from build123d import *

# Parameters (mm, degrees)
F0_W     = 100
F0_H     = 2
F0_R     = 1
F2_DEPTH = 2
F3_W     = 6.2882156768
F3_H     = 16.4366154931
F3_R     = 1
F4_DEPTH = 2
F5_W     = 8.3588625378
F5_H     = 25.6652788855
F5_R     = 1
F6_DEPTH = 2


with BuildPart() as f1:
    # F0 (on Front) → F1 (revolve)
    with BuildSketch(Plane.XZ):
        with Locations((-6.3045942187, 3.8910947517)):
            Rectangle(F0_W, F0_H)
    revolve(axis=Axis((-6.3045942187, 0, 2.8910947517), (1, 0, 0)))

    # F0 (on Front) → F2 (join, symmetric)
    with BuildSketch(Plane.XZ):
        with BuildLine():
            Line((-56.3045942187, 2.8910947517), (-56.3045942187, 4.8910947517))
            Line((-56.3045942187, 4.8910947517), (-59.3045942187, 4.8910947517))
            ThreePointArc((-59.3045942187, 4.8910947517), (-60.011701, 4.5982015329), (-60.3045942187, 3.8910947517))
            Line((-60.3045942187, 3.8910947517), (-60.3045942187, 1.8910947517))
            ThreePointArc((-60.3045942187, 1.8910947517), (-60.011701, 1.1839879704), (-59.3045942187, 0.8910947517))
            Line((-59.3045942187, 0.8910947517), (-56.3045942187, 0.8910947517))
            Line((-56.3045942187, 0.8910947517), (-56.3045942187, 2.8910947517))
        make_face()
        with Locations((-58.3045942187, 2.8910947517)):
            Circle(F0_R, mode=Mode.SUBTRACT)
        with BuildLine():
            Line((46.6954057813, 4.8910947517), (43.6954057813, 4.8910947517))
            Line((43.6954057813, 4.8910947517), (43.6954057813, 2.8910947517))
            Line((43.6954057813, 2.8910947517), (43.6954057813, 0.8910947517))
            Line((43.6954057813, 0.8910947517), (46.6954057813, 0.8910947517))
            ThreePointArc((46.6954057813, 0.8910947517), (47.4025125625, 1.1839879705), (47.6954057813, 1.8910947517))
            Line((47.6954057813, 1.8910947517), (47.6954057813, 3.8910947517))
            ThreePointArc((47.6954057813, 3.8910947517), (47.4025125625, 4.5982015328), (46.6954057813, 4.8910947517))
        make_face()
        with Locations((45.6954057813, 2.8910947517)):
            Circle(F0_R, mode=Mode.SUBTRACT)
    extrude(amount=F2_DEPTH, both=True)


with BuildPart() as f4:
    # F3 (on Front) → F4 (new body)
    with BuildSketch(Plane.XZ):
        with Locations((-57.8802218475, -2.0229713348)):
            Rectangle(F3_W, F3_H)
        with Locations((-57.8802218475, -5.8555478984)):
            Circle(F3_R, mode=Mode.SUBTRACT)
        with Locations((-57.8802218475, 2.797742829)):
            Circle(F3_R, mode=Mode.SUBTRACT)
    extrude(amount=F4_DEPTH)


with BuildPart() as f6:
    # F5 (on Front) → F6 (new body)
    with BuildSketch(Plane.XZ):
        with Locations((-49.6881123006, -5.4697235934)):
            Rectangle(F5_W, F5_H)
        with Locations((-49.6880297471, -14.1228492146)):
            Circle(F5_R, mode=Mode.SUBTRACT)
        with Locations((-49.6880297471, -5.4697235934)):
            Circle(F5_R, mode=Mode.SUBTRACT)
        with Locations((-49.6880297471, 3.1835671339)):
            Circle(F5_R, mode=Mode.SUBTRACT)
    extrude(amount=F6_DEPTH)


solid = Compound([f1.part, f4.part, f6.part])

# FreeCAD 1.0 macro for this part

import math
import FreeCAD as App
import Part
import Sketcher
Q = App.Units.Quantity

doc = App.newDocument("Part")
body = doc.addObject("PartDesign::Body", "Body")

# Sketch on XZ plane
sketch1 = doc.addObject("Sketcher::SketchObject", "Sketch")
body.addObject(sketch1)
sketch1.AttachmentSupport = (doc.XZ_Plane, [""])
sketch1.MapMode = "FlatFace"
sketch1.addGeometry(Part.LineSegment(App.Vector(-56.304594, 4.891095, 0), App.Vector(-56.304594, 2.891095, 0)), False)
sketch1.addGeometry(Part.LineSegment(App.Vector(-56.304594, 2.891095, 0), App.Vector(43.695406, 2.891095, 0)), False)
sketch1.addGeometry(Part.LineSegment(App.Vector(43.695406, 2.891095, 0), App.Vector(43.695406, 4.891095, 0)), False)
sketch1.addGeometry(Part.LineSegment(App.Vector(43.695406, 4.891095, 0), App.Vector(-56.304594, 4.891095, 0)), False)
sketch1.addGeometry(Part.LineSegment(App.Vector(-56.304594, 2.891095, 0), App.Vector(43.695406, 2.891095, 0)), True)  # axis
sketch1.addConstraint(Sketcher.Constraint("Coincident", 0, 2, 1, 1))
sketch1.addConstraint(Sketcher.Constraint("Coincident", 1, 2, 2, 1))
sketch1.addConstraint(Sketcher.Constraint("Coincident", 2, 2, 3, 1))
sketch1.addConstraint(Sketcher.Constraint("Coincident", 3, 2, 0, 1))
sketch1.addConstraint(Sketcher.Constraint("Vertical", 0))
sketch1.addConstraint(Sketcher.Constraint("Horizontal", 1))
sketch1.addConstraint(Sketcher.Constraint("Vertical", 2))
sketch1.addConstraint(Sketcher.Constraint("Horizontal", 3))
sketch1.addConstraint(Sketcher.Constraint("Horizontal", 4))
sketch1.addConstraint(Sketcher.Constraint("Coincident", 4, 1, 0, 2))
sketch1.addConstraint(Sketcher.Constraint("Vertical", 2, 2, 4, 2))
sketch1.addConstraint(Sketcher.Constraint("DistanceX", 1, 1, 1, 2, Q("100 mm")))
sketch1.addConstraint(Sketcher.Constraint("DistanceY", 0, 2, 0, 1, Q("2 mm")))
sketch1.addConstraint(Sketcher.Constraint("DistanceX", 0, 2, -1, 1, Q("56.304594 mm")))
sketch1.addConstraint(Sketcher.Constraint("DistanceY", -1, 1, 0, 2, Q("2.891095 mm")))
revolution = doc.addObject("PartDesign::Revolution", "Revolution")
body.addObject(revolution)
revolution.Profile = sketch1
revolution.ReferenceAxis = (sketch1, ["Axis0"])
revolution.Angle = 360

# Sketch on XZ plane
sketch2 = doc.addObject("Sketcher::SketchObject", "Sketch001")
body.addObject(sketch2)
sketch2.AttachmentSupport = (doc.XZ_Plane, [""])
sketch2.MapMode = "FlatFace"
sketch2.addGeometry(Part.LineSegment(App.Vector(-56.304594, 4.891095, 0), App.Vector(-59.304594, 4.891095, 0)), False)
sketch2.addGeometry(Part.ArcOfCircle(Part.Circle(App.Vector(-59.304594, 3.891095, 0), App.Vector(0, 0, 1), 1), math.radians(90), math.radians(180)), False)
sketch2.addGeometry(Part.LineSegment(App.Vector(-60.304594, 3.891095, 0), App.Vector(-60.304594, 1.891095, 0)), False)
sketch2.addGeometry(Part.ArcOfCircle(Part.Circle(App.Vector(-59.304594, 1.891095, 0), App.Vector(0, 0, 1), 1), math.radians(180), math.radians(270)), False)
sketch2.addGeometry(Part.LineSegment(App.Vector(-59.304594, 0.891095, 0), App.Vector(-56.304594, 0.891095, 0)), False)
sketch2.addGeometry(Part.LineSegment(App.Vector(-56.304594, 0.891095, 0), App.Vector(-56.304594, 4.891095, 0)), False)
sketch2.addGeometry(Part.Circle(App.Vector(-58.304594, 2.891095, 0), App.Vector(0, 0, 1), 1), False)
sketch2.addGeometry(Part.LineSegment(App.Vector(46.695406, 4.891095, 0), App.Vector(43.695406, 4.891095, 0)), False)
sketch2.addGeometry(Part.LineSegment(App.Vector(43.695406, 4.891095, 0), App.Vector(43.695406, 0.891095, 0)), False)
sketch2.addGeometry(Part.LineSegment(App.Vector(43.695406, 0.891095, 0), App.Vector(46.695406, 0.891095, 0)), False)
sketch2.addGeometry(Part.ArcOfCircle(Part.Circle(App.Vector(46.695406, 1.891095, 0), App.Vector(0, 0, 1), 1), math.radians(-90), math.radians(0)), False)
sketch2.addGeometry(Part.LineSegment(App.Vector(47.695406, 1.891095, 0), App.Vector(47.695406, 3.891095, 0)), False)
sketch2.addGeometry(Part.ArcOfCircle(Part.Circle(App.Vector(46.695406, 3.891095, 0), App.Vector(0, 0, 1), 1), math.radians(0), math.radians(90)), False)
sketch2.addGeometry(Part.Circle(App.Vector(45.695406, 2.891095, 0), App.Vector(0, 0, 1), 1), False)
sketch2.addConstraint(Sketcher.Constraint("Tangent", 0, 2, 1, 1))
sketch2.addConstraint(Sketcher.Constraint("Tangent", 1, 2, 2, 1))
sketch2.addConstraint(Sketcher.Constraint("Tangent", 2, 2, 3, 1))
sketch2.addConstraint(Sketcher.Constraint("Tangent", 3, 2, 4, 1))
sketch2.addConstraint(Sketcher.Constraint("Coincident", 4, 2, 5, 1))
sketch2.addConstraint(Sketcher.Constraint("Coincident", 5, 2, 0, 1))
sketch2.addConstraint(Sketcher.Constraint("Coincident", 7, 2, 8, 1))
sketch2.addConstraint(Sketcher.Constraint("Coincident", 8, 2, 9, 1))
sketch2.addConstraint(Sketcher.Constraint("Tangent", 9, 2, 10, 1))
sketch2.addConstraint(Sketcher.Constraint("Tangent", 10, 2, 11, 1))
sketch2.addConstraint(Sketcher.Constraint("Tangent", 11, 2, 12, 1))
sketch2.addConstraint(Sketcher.Constraint("Tangent", 12, 2, 7, 1))
sketch2.addConstraint(Sketcher.Constraint("Horizontal", 0))
sketch2.addConstraint(Sketcher.Constraint("Vertical", 2))
sketch2.addConstraint(Sketcher.Constraint("Horizontal", 4))
sketch2.addConstraint(Sketcher.Constraint("Vertical", 5))
sketch2.addConstraint(Sketcher.Constraint("Horizontal", 7))
sketch2.addConstraint(Sketcher.Constraint("Vertical", 8))
sketch2.addConstraint(Sketcher.Constraint("Horizontal", 9))
sketch2.addConstraint(Sketcher.Constraint("Vertical", 11))
sketch2.addConstraint(Sketcher.Constraint("Equal", 1, 3))
sketch2.addConstraint(Sketcher.Constraint("Equal", 3, 6))
sketch2.addConstraint(Sketcher.Constraint("Equal", 6, 10))
sketch2.addConstraint(Sketcher.Constraint("Equal", 10, 12))
sketch2.addConstraint(Sketcher.Constraint("Equal", 12, 13))
sketch2.addConstraint(Sketcher.Constraint("Horizontal", 3, 3, 10, 3))
sketch2.addConstraint(Sketcher.Constraint("Horizontal", 1, 3, 12, 3))
sketch2.addConstraint(Sketcher.Constraint("Horizontal", 6, 3, 13, 3))
sketch2.addConstraint(Sketcher.Constraint("Equal", 4, 7))
sketch2.addConstraint(Sketcher.Constraint("Diameter", 6, Q("2 mm")))
sketch2.addConstraint(Sketcher.Constraint("DistanceX", 0, 2, 0, 1, Q("3 mm")))
sketch2.addConstraint(Sketcher.Constraint("DistanceY", 2, 2, 2, 1, Q("2 mm")))
sketch2.addConstraint(Sketcher.Constraint("DistanceX", 1, 3, 6, 3, Q("1 mm")))
sketch2.addConstraint(Sketcher.Constraint("DistanceY", 6, 3, 1, 3, Q("1 mm")))
sketch2.addConstraint(Sketcher.Constraint("DistanceX", 6, 3, 10, 3, Q("105 mm")))
sketch2.addConstraint(Sketcher.Constraint("DistanceX", 13, 3, 10, 3, Q("1 mm")))
sketch2.addConstraint(Sketcher.Constraint("DistanceX", 1, 3, -1, 1, Q("59.304594 mm")))
sketch2.addConstraint(Sketcher.Constraint("DistanceY", -1, 1, 1, 3, Q("3.891095 mm")))
pad1 = doc.addObject("PartDesign::Pad", "Pad")
body.addObject(pad1)
pad1.Profile = sketch2
pad1.Length = 4
pad1.Midplane = True
body2 = doc.addObject("PartDesign::Body", "Body001")

# Sketch on XZ plane
sketch3 = doc.addObject("Sketcher::SketchObject", "Sketch002")
body2.addObject(sketch3)
sketch3.AttachmentSupport = (doc.getObject("XZ_Plane001"), [""])
sketch3.MapMode = "FlatFace"
sketch3.addGeometry(Part.LineSegment(App.Vector(-61.02433, 6.195336, 0), App.Vector(-61.02433, -10.241279, 0)), False)
sketch3.addGeometry(Part.LineSegment(App.Vector(-61.02433, -10.241279, 0), App.Vector(-54.736114, -10.241279, 0)), False)
sketch3.addGeometry(Part.LineSegment(App.Vector(-54.736114, -10.241279, 0), App.Vector(-54.736114, 6.195336, 0)), False)
sketch3.addGeometry(Part.LineSegment(App.Vector(-54.736114, 6.195336, 0), App.Vector(-61.02433, 6.195336, 0)), False)
sketch3.addGeometry(Part.Circle(App.Vector(-57.880222, -5.855548, 0), App.Vector(0, 0, 1), 1), False)
sketch3.addGeometry(Part.Circle(App.Vector(-57.880222, 2.797743, 0), App.Vector(0, 0, 1), 1), False)
sketch3.addConstraint(Sketcher.Constraint("Coincident", 0, 2, 1, 1))
sketch3.addConstraint(Sketcher.Constraint("Coincident", 1, 2, 2, 1))
sketch3.addConstraint(Sketcher.Constraint("Coincident", 2, 2, 3, 1))
sketch3.addConstraint(Sketcher.Constraint("Coincident", 3, 2, 0, 1))
sketch3.addConstraint(Sketcher.Constraint("Vertical", 0))
sketch3.addConstraint(Sketcher.Constraint("Horizontal", 1))
sketch3.addConstraint(Sketcher.Constraint("Vertical", 2))
sketch3.addConstraint(Sketcher.Constraint("Horizontal", 3))
sketch3.addConstraint(Sketcher.Constraint("Equal", 4, 5))
sketch3.addConstraint(Sketcher.Constraint("Vertical", 4, 3, 5, 3))
sketch3.addConstraint(Sketcher.Constraint("Diameter", 4, Q("2 mm")))
sketch3.addConstraint(Sketcher.Constraint("DistanceX", 1, 1, 1, 2, Q("6.288216 mm")))
sketch3.addConstraint(Sketcher.Constraint("DistanceY", 0, 2, 0, 1, Q("16.436615 mm")))
sketch3.addConstraint(Sketcher.Constraint("DistanceX", 4, 3, -1, 1, Q("57.880222 mm")))
sketch3.addConstraint(Sketcher.Constraint("DistanceX", 0, 2, -1, 1, Q("61.02433 mm")))
sketch3.addConstraint(Sketcher.Constraint("DistanceY", 0, 2, -1, 1, Q("10.241279 mm")))
sketch3.addConstraint(Sketcher.Constraint("DistanceY", 4, 3, 5, 3, Q("8.653291 mm")))
sketch3.addConstraint(Sketcher.Constraint("DistanceY", 0, 2, 4, 3, Q("4.385731 mm")))
pad2 = doc.addObject("PartDesign::Pad", "Pad001")
body2.addObject(pad2)
pad2.Profile = sketch3
pad2.Length = 2
body3 = doc.addObject("PartDesign::Body", "Body002")

# Sketch on XZ plane
sketch4 = doc.addObject("Sketcher::SketchObject", "Sketch003")
body3.addObject(sketch4)
sketch4.AttachmentSupport = (doc.getObject("XZ_Plane002"), [""])
sketch4.MapMode = "FlatFace"
sketch4.addGeometry(Part.LineSegment(App.Vector(-53.867544, 7.362916, 0), App.Vector(-53.867544, -18.302363, 0)), False)
sketch4.addGeometry(Part.LineSegment(App.Vector(-53.867544, -18.302363, 0), App.Vector(-45.508681, -18.302363, 0)), False)
sketch4.addGeometry(Part.LineSegment(App.Vector(-45.508681, -18.302363, 0), App.Vector(-45.508681, 7.362916, 0)), False)
sketch4.addGeometry(Part.LineSegment(App.Vector(-45.508681, 7.362916, 0), App.Vector(-53.867544, 7.362916, 0)), False)
sketch4.addGeometry(Part.Circle(App.Vector(-49.68803, -14.122849, 0), App.Vector(0, 0, 1), 1), False)
sketch4.addGeometry(Part.Circle(App.Vector(-49.68803, -5.469724, 0), App.Vector(0, 0, 1), 1), False)
sketch4.addGeometry(Part.Circle(App.Vector(-49.68803, 3.183567, 0), App.Vector(0, 0, 1), 1), False)
sketch4.addConstraint(Sketcher.Constraint("Coincident", 0, 2, 1, 1))
sketch4.addConstraint(Sketcher.Constraint("Coincident", 1, 2, 2, 1))
sketch4.addConstraint(Sketcher.Constraint("Coincident", 2, 2, 3, 1))
sketch4.addConstraint(Sketcher.Constraint("Coincident", 3, 2, 0, 1))
sketch4.addConstraint(Sketcher.Constraint("Vertical", 0))
sketch4.addConstraint(Sketcher.Constraint("Horizontal", 1))
sketch4.addConstraint(Sketcher.Constraint("Vertical", 2))
sketch4.addConstraint(Sketcher.Constraint("Horizontal", 3))
sketch4.addConstraint(Sketcher.Constraint("Equal", 4, 5))
sketch4.addConstraint(Sketcher.Constraint("Equal", 5, 6))
sketch4.addConstraint(Sketcher.Constraint("Vertical", 4, 3, 5, 3))
sketch4.addConstraint(Sketcher.Constraint("Vertical", 5, 3, 6, 3))
sketch4.addConstraint(Sketcher.Constraint("Diameter", 4, Q("2 mm")))
sketch4.addConstraint(Sketcher.Constraint("DistanceY", 0, 2, 0, 1, Q("25.665279 mm")))
sketch4.addConstraint(Sketcher.Constraint("DistanceX", 1, 1, 1, 2, Q("8.358863 mm")))
sketch4.addConstraint(Sketcher.Constraint("DistanceX", 4, 3, -1, 1, Q("49.68803 mm")))
sketch4.addConstraint(Sketcher.Constraint("DistanceY", 4, 3, -1, 1, Q("14.122849 mm")))
sketch4.addConstraint(Sketcher.Constraint("DistanceX", 1, 2, -1, 1, Q("45.508681 mm")))
sketch4.addConstraint(Sketcher.Constraint("DistanceY", 5, 3, 6, 3, Q("8.653291 mm")))
sketch4.addConstraint(Sketcher.Constraint("DistanceY", 0, 2, 5, 3, Q("12.832639 mm")))
sketch4.addConstraint(Sketcher.Constraint("DistanceY", 5, 3, -1, 1, Q("5.469724 mm")))
pad3 = doc.addObject("PartDesign::Pad", "Pad002")
body3.addObject(pad3)
pad3.Profile = sketch4
pad3.Length = 2

doc.recompute()
